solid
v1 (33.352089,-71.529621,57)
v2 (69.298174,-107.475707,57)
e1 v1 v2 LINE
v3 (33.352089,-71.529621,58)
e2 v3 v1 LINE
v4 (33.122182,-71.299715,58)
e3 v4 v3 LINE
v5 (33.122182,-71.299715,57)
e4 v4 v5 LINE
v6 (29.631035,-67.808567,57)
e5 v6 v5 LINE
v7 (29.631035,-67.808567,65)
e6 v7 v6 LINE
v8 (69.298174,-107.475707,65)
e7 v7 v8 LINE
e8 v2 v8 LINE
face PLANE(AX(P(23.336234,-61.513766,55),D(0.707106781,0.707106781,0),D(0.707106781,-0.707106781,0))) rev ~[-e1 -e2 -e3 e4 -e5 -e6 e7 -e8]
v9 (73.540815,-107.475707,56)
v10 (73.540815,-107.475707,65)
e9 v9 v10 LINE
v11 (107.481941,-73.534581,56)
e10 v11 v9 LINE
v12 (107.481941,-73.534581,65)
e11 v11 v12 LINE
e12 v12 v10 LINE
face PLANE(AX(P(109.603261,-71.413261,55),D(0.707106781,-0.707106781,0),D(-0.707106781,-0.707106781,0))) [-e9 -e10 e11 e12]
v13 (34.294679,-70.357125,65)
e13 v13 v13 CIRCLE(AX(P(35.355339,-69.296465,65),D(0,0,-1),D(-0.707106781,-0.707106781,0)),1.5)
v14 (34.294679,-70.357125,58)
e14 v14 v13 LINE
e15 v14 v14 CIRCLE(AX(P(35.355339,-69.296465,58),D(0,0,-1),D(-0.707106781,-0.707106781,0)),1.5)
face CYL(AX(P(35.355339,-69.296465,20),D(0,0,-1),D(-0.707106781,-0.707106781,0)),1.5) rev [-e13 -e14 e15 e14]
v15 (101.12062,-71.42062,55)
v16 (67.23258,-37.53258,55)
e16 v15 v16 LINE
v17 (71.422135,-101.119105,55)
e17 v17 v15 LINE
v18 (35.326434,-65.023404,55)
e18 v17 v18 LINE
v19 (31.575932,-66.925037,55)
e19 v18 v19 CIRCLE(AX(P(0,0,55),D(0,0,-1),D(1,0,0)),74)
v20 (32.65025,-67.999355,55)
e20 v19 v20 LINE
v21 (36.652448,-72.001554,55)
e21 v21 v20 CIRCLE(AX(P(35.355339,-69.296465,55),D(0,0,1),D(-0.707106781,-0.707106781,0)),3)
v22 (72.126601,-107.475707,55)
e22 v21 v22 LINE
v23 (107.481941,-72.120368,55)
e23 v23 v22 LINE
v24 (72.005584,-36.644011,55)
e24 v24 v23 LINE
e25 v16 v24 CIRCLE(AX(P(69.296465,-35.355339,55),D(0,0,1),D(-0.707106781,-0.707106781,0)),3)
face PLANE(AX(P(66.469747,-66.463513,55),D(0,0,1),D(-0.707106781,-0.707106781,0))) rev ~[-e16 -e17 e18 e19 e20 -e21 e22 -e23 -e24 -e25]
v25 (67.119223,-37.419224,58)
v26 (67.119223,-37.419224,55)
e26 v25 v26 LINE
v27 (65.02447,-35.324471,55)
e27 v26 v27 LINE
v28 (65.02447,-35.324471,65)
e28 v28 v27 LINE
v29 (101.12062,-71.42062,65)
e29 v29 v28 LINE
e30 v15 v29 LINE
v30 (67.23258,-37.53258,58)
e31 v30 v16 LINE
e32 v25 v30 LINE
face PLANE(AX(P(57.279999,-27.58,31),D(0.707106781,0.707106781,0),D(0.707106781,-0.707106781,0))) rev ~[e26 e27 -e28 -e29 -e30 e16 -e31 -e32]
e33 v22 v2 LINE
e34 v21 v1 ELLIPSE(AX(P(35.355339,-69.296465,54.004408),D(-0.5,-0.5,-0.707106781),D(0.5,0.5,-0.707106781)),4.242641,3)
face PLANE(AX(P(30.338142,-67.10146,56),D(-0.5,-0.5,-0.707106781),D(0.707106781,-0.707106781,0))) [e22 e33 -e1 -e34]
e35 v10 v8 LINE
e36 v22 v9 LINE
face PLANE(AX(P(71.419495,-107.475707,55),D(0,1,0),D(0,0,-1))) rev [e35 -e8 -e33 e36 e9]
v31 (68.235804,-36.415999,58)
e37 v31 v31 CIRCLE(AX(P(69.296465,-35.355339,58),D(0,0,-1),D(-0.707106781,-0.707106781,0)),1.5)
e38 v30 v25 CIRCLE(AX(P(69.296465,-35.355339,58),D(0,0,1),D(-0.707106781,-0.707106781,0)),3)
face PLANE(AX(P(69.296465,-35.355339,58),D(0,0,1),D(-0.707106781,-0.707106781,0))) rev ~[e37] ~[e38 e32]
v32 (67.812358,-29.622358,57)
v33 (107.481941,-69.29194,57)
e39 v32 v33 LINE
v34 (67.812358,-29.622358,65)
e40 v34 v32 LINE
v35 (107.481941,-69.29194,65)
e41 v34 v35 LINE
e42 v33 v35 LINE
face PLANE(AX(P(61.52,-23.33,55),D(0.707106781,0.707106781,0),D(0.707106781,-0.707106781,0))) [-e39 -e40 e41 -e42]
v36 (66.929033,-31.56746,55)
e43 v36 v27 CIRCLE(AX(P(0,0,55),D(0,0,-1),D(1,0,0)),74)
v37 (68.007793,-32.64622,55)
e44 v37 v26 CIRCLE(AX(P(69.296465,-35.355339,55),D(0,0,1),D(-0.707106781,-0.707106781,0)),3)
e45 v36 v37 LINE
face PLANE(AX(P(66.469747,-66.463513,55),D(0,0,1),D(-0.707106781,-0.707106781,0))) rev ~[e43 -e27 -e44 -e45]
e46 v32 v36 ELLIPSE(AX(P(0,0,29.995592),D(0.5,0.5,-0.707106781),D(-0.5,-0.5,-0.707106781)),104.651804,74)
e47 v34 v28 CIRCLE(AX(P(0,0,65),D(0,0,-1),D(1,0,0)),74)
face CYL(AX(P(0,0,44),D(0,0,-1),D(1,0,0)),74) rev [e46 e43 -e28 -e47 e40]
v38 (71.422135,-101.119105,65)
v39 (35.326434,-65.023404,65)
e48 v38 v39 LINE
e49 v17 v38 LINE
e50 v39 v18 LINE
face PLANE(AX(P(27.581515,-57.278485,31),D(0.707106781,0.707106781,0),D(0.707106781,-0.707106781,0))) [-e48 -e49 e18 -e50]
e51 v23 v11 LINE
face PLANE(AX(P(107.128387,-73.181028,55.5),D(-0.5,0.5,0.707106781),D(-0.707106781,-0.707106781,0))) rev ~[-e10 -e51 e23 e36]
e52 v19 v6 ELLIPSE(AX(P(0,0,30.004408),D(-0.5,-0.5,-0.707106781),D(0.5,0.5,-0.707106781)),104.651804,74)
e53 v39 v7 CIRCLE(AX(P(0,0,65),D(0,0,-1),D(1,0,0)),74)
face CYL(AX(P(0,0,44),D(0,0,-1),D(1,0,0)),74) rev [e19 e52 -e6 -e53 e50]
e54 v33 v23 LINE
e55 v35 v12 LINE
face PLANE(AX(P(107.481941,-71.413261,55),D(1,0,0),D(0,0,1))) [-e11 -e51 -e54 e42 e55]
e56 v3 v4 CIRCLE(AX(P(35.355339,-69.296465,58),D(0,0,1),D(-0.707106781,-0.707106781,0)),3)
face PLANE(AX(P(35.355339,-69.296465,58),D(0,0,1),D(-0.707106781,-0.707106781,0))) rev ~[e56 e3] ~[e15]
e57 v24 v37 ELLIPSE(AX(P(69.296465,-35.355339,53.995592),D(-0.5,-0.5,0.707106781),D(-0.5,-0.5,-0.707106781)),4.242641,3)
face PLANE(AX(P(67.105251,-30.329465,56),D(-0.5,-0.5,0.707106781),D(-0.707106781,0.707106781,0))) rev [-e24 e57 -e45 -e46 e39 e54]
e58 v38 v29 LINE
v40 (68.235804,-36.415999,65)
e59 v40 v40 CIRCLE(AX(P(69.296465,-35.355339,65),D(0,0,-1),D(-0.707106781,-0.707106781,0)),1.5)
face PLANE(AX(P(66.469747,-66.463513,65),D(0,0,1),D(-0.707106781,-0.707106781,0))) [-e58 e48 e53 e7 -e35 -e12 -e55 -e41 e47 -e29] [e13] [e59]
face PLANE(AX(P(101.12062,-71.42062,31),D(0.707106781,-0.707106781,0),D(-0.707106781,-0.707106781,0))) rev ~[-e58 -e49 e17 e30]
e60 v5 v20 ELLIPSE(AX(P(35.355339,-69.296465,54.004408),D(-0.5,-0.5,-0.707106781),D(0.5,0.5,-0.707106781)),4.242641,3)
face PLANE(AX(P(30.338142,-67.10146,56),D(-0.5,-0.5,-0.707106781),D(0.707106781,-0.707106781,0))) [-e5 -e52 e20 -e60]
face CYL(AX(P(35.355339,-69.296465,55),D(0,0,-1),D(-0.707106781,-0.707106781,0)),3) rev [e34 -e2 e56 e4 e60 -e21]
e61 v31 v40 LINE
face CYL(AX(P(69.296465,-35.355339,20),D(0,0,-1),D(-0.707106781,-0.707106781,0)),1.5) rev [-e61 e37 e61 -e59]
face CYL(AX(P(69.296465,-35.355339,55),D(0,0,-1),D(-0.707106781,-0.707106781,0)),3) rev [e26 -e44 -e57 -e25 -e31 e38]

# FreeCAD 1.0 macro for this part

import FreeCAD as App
import Part
import Sketcher

V = App.Vector
Q = App.Units.Quantity


def edges_at(feature, points):
    """Names of the edges that pass closest to the given points."""
    edges = feature.Shape.Edges
    near = lambda p: min(range(len(edges)), key=lambda i: edges[i].distToShape(Part.Vertex(*p))[0])
    return sorted({f"Edge{near(p) + 1}" for p in points})


def add_polygon(sketch, points):
    """Adds a closed chain of lines whose ends are joined by coincident constraints."""
    first, n = sketch.GeometryCount, len(points)
    for a, b in zip(points, points[1:] + points[:1]):
        sketch.addGeometry(Part.LineSegment(App.Vector(*a, 0), App.Vector(*b, 0)), False)
    for i in range(n):
        sketch.addConstraint(Sketcher.Constraint("Coincident", first + i, 2, first + (i + 1) % n, 1))

doc = App.newDocument("Part")
body = doc.addObject("PartDesign::Body", "Body")

# Sketch on XY plane
sketch1 = body.newObject("Sketcher::SketchObject", "Sketch")
sketch1.AttachmentSupport = (doc.getObject("XY_Plane"), [""])
sketch1.MapMode = "FlatFace"
sketch1.AttachmentOffset = App.Placement(V(0, 0, -80), App.Rotation())
sketch1.addGeometry(Part.Circle(V(-24, 74, 0), V(0, 0, 1), 3), False)
sketch1.addConstraint(Sketcher.Constraint("Diameter", 0, Q("6 mm")))
sketch1.addConstraint(Sketcher.Constraint("DistanceX", 0, 3, -1, 1, Q("24 mm")))
sketch1.addConstraint(Sketcher.Constraint("DistanceY", -1, 1, 0, 3, Q("74 mm")))
pad1 = body.newObject("PartDesign::Pad", "Pad")
pad1.Profile = sketch1
pad1.Length = 3
body2 = doc.addObject("PartDesign::Body", "Body001")

# Sketch on XY plane
sketch2 = body2.newObject("Sketcher::SketchObject", "Sketch001")
sketch2.AttachmentSupport = (doc.getObject("XY_Plane001"), [""])
sketch2.MapMode = "FlatFace"
sketch2.AttachmentOffset = App.Placement(V(0, 0, -80), App.Rotation())
sketch2.addGeometry(Part.Circle(V(-15, 135, 0), V(0, 0, 1), 3), False)
sketch2.addConstraint(Sketcher.Constraint("Diameter", 0, Q("6 mm")))
sketch2.addConstraint(Sketcher.Constraint("DistanceX", 0, 3, -1, 1, Q("15 mm")))
sketch2.addConstraint(Sketcher.Constraint("DistanceY", -1, 1, 0, 3, Q("135 mm")))
pad2 = body2.newObject("PartDesign::Pad", "Pad001")
pad2.Profile = sketch2
pad2.Length = 3
body3 = doc.addObject("PartDesign::Body", "Body002")

# Sketch on XY plane
sketch3 = body3.newObject("Sketcher::SketchObject", "Sketch002")
sketch3.AttachmentSupport = (doc.getObject("XY_Plane002"), [""])
sketch3.MapMode = "FlatFace"
sketch3.AttachmentOffset = App.Placement(V(0, 0, -80), App.Rotation())
sketch3.addGeometry(Part.Circle(V(15, 135, 0), V(0, 0, 1), 3), False)
sketch3.addConstraint(Sketcher.Constraint("Diameter", 0, Q("6 mm")))
sketch3.addConstraint(Sketcher.Constraint("DistanceX", -1, 1, 0, 3, Q("15 mm")))
sketch3.addConstraint(Sketcher.Constraint("DistanceY", -1, 1, 0, 3, Q("135 mm")))
pad3 = body3.newObject("PartDesign::Pad", "Pad002")
pad3.Profile = sketch3
pad3.Length = 3
body4 = doc.addObject("PartDesign::Body", "Body003")
body4.AllowCompound = True

# Sketch on XY plane
sketch4 = body4.newObject("Sketcher::SketchObject", "Sketch003")
sketch4.AttachmentSupport = (doc.getObject("XY_Plane003"), [""])
sketch4.MapMode = "FlatFace"
sketch4.AttachmentOffset = App.Placement(V(0, 0, -80), App.Rotation())
sketch4.addGeometry(Part.Circle(V(24, 74, 0), V(0, 0, 1), 3), False)
sketch4.addConstraint(Sketcher.Constraint("Diameter", 0, Q("6 mm")))
sketch4.addConstraint(Sketcher.Constraint("DistanceX", -1, 1, 0, 3, Q("24 mm")))
sketch4.addConstraint(Sketcher.Constraint("DistanceY", -1, 1, 0, 3, Q("74 mm")))
pad4 = body4.newObject("PartDesign::Pad", "Pad003")
pad4.Profile = sketch4
pad4.Length = 3
doc.recompute()

boolean = body4.newObject("PartDesign::Boolean", "Boolean")
boolean.Type = "Fuse"
boolean.addObjects([body])
doc.recompute()

boolean2 = body4.newObject("PartDesign::Boolean", "Boolean001")
boolean2.Type = "Fuse"
boolean2.addObjects([body2])
doc.recompute()

boolean3 = body4.newObject("PartDesign::Boolean", "Boolean002")
boolean3.Type = "Fuse"
boolean3.addObjects([body3])
body5 = doc.addObject("PartDesign::Body", "Body004")
body5.AllowCompound = True
doc.recompute()

body4.Placement = App.Placement(V(0, 0, 135), App.Rotation(V(0, 0, 1), 225))
boolean4 = body5.newObject("PartDesign::Boolean", "Boolean003")
boolean4.Type = "Fuse"
boolean4.addObjects([body4])
body6 = doc.addObject("PartDesign::Body", "Body005")

# Sketch on XY plane
sketch5 = body6.newObject("Sketcher::SketchObject", "Sketch004")
sketch5.AttachmentSupport = (doc.getObject("XY_Plane005"), [""])
sketch5.MapMode = "FlatFace"
sketch5.AttachmentOffset = App.Placement(V(0, 0, -80), App.Rotation())
sketch5.addGeometry(Part.Circle(V(-24, 74, 0), V(0, 0, 1), 1.5), False)
sketch5.addConstraint(Sketcher.Constraint("Diameter", 0, Q("3 mm")))
sketch5.addConstraint(Sketcher.Constraint("DistanceX", 0, 3, -1, 1, Q("24 mm")))
sketch5.addConstraint(Sketcher.Constraint("DistanceY", -1, 1, 0, 3, Q("74 mm")))
pad5 = body6.newObject("PartDesign::Pad", "Pad004")
pad5.Profile = sketch5
pad5.Length = 60
body7 = doc.addObject("PartDesign::Body", "Body006")

# Sketch on XY plane
sketch6 = body7.newObject("Sketcher::SketchObject", "Sketch005")
sketch6.AttachmentSupport = (doc.getObject("XY_Plane006"), [""])
sketch6.MapMode = "FlatFace"
sketch6.AttachmentOffset = App.Placement(V(0, 0, -80), App.Rotation())
sketch6.addGeometry(Part.Circle(V(-15, 135, 0), V(0, 0, 1), 1.5), False)
sketch6.addConstraint(Sketcher.Constraint("Diameter", 0, Q("3 mm")))
sketch6.addConstraint(Sketcher.Constraint("DistanceX", 0, 3, -1, 1, Q("15 mm")))
sketch6.addConstraint(Sketcher.Constraint("DistanceY", -1, 1, 0, 3, Q("135 mm")))
pad6 = body7.newObject("PartDesign::Pad", "Pad005")
pad6.Profile = sketch6
pad6.Length = 60
body8 = doc.addObject("PartDesign::Body", "Body007")

# Sketch on XY plane
sketch7 = body8.newObject("Sketcher::SketchObject", "Sketch006")
sketch7.AttachmentSupport = (doc.getObject("XY_Plane007"), [""])
sketch7.MapMode = "FlatFace"
sketch7.AttachmentOffset = App.Placement(V(0, 0, -80), App.Rotation())
sketch7.addGeometry(Part.Circle(V(15, 135, 0), V(0, 0, 1), 1.5), False)
sketch7.addConstraint(Sketcher.Constraint("Diameter", 0, Q("3 mm")))
sketch7.addConstraint(Sketcher.Constraint("DistanceX", -1, 1, 0, 3, Q("15 mm")))
sketch7.addConstraint(Sketcher.Constraint("DistanceY", -1, 1, 0, 3, Q("135 mm")))
pad7 = body8.newObject("PartDesign::Pad", "Pad006")
pad7.Profile = sketch7
pad7.Length = 60
body9 = doc.addObject("PartDesign::Body", "Body008")
body9.AllowCompound = True

# Sketch on XY plane
sketch8 = body9.newObject("Sketcher::SketchObject", "Sketch007")
sketch8.AttachmentSupport = (doc.getObject("XY_Plane008"), [""])
sketch8.MapMode = "FlatFace"
sketch8.AttachmentOffset = App.Placement(V(0, 0, -80), App.Rotation())
sketch8.addGeometry(Part.Circle(V(24, 74, 0), V(0, 0, 1), 1.5), False)
sketch8.addConstraint(Sketcher.Constraint("Diameter", 0, Q("3 mm")))
sketch8.addConstraint(Sketcher.Constraint("DistanceX", -1, 1, 0, 3, Q("24 mm")))
sketch8.addConstraint(Sketcher.Constraint("DistanceY", -1, 1, 0, 3, Q("74 mm")))
pad8 = body9.newObject("PartDesign::Pad", "Pad007")
pad8.Profile = sketch8
pad8.Length = 60
doc.recompute()

boolean5 = body9.newObject("PartDesign::Boolean", "Boolean004")
boolean5.Type = "Fuse"
boolean5.addObjects([body6])
doc.recompute()

boolean6 = body9.newObject("PartDesign::Boolean", "Boolean005")
boolean6.Type = "Fuse"
boolean6.addObjects([body7])
doc.recompute()

boolean7 = body9.newObject("PartDesign::Boolean", "Boolean006")
boolean7.Type = "Fuse"
boolean7.addObjects([body8])
body10 = doc.addObject("PartDesign::Body", "Body009")
body10.AllowCompound = True
doc.recompute()

body9.Placement = App.Placement(V(0, 0, 100), App.Rotation(V(0, 0, 1), 225))
boolean8 = body10.newObject("PartDesign::Boolean", "Boolean007")
boolean8.Type = "Fuse"
boolean8.addObjects([body9])
body11 = doc.addObject("PartDesign::Body", "Body010")

# Sketch on XY plane
sketch9 = body11.newObject("Sketcher::SketchObject", "Sketch008")
sketch9.AttachmentSupport = (doc.getObject("XY_Plane010"), [""])
sketch9.MapMode = "FlatFace"
sketch9.AttachmentOffset = App.Placement(V(0, 0, 44), App.Rotation())
sketch9.addGeometry(Part.Circle(V(0, 0, 0), V(0, 0, 1), 74), False)
sketch9.addConstraint(Sketcher.Constraint("Coincident", 0, 3, -1, 1))
sketch9.addConstraint(Sketcher.Constraint("Diameter", 0, Q("148 mm")))
pad9 = body11.newObject("PartDesign::Pad", "Pad008")
pad9.Profile = sketch9
pad9.Length = 40
body12 = doc.addObject("PartDesign::Body", "Body011")

# Sketch on XY plane
sketch10 = body12.newObject("Sketcher::SketchObject", "Sketch009")
sketch10.AttachmentSupport = (doc.getObject("XY_Plane011"), [""])
sketch10.MapMode = "FlatFace"
sketch10.AttachmentOffset = App.Placement(V(0, 0, 31), App.Rotation())
add_polygon(sketch10, [(-21.001071, 122.005081), (-21.001071, 60.005081), (20.998929, 60.005081), (20.998929, 122.005081)])  # lines 0-3
sketch10.addConstraint(Sketcher.Constraint("Vertical", 0))
sketch10.addConstraint(Sketcher.Constraint("Horizontal", 1))
sketch10.addConstraint(Sketcher.Constraint("Vertical", 2))
sketch10.addConstraint(Sketcher.Constraint("Horizontal", 3))
sketch10.addConstraint(Sketcher.Constraint("DistanceX", 1, 1, 1, 2, Q("42 mm")))
sketch10.addConstraint(Sketcher.Constraint("DistanceY", 0, 2, 0, 1, Q("62 mm")))
sketch10.addConstraint(Sketcher.Constraint("DistanceX", 0, 2, -1, 1, Q("21.001071 mm")))
sketch10.addConstraint(Sketcher.Constraint("DistanceY", -1, 1, 0, 2, Q("60.005081 mm")))
pad10 = body12.newObject("PartDesign::Pad", "Pad009")
pad10.Profile = sketch10
pad10.Length = 50
body13 = doc.addObject("PartDesign::Body", "Body012")
doc.recompute()

body12.Placement = App.Placement(V(0, 0, 0), App.Rotation(V(0, 0, 1), 225))
boolean9 = body13.newObject("PartDesign::Boolean", "Boolean008")
boolean9.Type = "Fuse"
boolean9.addObjects([body12])
body14 = doc.addObject("PartDesign::Body", "Body013")

# Sketch on XY plane
sketch11 = body14.newObject("Sketcher::SketchObject", "Sketch010")
sketch11.AttachmentSupport = (doc.getObject("XY_Plane013"), [""])
sketch11.MapMode = "FlatFace"
sketch11.AttachmentOffset = App.Placement(V(0, 0, 75), App.Rotation())
add_polygon(sketch11, [(-27.004408, 127.99801), (-27.004408, 59.99801), (26.995592, 59.99801), (26.995592, 127.99801)])  # lines 0-3
sketch11.addConstraint(Sketcher.Constraint("Vertical", 0))
sketch11.addConstraint(Sketcher.Constraint("Horizontal", 1))
sketch11.addConstraint(Sketcher.Constraint("Vertical", 2))
sketch11.addConstraint(Sketcher.Constraint("Horizontal", 3))
sketch11.addConstraint(Sketcher.Constraint("DistanceX", 1, 1, 1, 2, Q("54 mm")))
sketch11.addConstraint(Sketcher.Constraint("DistanceY", 0, 2, 0, 1, Q("68 mm")))
sketch11.addConstraint(Sketcher.Constraint("DistanceX", 0, 2, -1, 1, Q("27.004408 mm")))
sketch11.addConstraint(Sketcher.Constraint("DistanceY", -1, 1, 0, 2, Q("59.99801 mm")))
pad11 = body14.newObject("PartDesign::Pad", "Pad010")
pad11.Profile = sketch11
pad11.Length = 10
body15 = doc.addObject("PartDesign::Body", "Body014")
doc.recompute()

body14.Placement = App.Placement(V(0, 0, -20), App.Rotation(V(0, 0, 1), 225))
boolean10 = body15.newObject("PartDesign::Boolean", "Boolean009")
boolean10.Type = "Fuse"
boolean10.addObjects([body14])
doc.recompute()

boolean11 = body15.newObject("PartDesign::Boolean", "Boolean010")
boolean11.Type = "Cut"
boolean11.addObjects([body13])
doc.recompute()

boolean12 = body15.newObject("PartDesign::Boolean", "Boolean011")
boolean12.Type = "Cut"
boolean12.addObjects([body11])
doc.recompute()

chamfer = body15.newObject("PartDesign::Chamfer", "Chamfer")
chamfer.Base = (boolean12, edges_at(boolean12, [(109.603, -71.413, 60), (71.419, -109.597, 60)]))
chamfer.Size = 3
doc.recompute()

chamfer2 = body15.newObject("PartDesign::Chamfer", "Chamfer001")
chamfer2.Base = (chamfer, edges_at(chamfer, [(87.647, -49.457, 55), (49.465, -87.642, 55)]))
chamfer2.Size = 2
doc.recompute()

chamfer3 = body15.newObject("PartDesign::Chamfer", "Chamfer002")
chamfer3.Base = (chamfer2, edges_at(chamfer2, [(90.511, -90.505, 55)]))
chamfer3.Size = 1
doc.recompute()

boolean13 = body15.newObject("PartDesign::Boolean", "Boolean012")
boolean13.Type = "Cut"
boolean13.addObjects([body10])
doc.recompute()

boolean14 = body15.newObject("PartDesign::Boolean", "Boolean013")
boolean14.Type = "Cut"
boolean14.addObjects([body5])

doc.recompute()
